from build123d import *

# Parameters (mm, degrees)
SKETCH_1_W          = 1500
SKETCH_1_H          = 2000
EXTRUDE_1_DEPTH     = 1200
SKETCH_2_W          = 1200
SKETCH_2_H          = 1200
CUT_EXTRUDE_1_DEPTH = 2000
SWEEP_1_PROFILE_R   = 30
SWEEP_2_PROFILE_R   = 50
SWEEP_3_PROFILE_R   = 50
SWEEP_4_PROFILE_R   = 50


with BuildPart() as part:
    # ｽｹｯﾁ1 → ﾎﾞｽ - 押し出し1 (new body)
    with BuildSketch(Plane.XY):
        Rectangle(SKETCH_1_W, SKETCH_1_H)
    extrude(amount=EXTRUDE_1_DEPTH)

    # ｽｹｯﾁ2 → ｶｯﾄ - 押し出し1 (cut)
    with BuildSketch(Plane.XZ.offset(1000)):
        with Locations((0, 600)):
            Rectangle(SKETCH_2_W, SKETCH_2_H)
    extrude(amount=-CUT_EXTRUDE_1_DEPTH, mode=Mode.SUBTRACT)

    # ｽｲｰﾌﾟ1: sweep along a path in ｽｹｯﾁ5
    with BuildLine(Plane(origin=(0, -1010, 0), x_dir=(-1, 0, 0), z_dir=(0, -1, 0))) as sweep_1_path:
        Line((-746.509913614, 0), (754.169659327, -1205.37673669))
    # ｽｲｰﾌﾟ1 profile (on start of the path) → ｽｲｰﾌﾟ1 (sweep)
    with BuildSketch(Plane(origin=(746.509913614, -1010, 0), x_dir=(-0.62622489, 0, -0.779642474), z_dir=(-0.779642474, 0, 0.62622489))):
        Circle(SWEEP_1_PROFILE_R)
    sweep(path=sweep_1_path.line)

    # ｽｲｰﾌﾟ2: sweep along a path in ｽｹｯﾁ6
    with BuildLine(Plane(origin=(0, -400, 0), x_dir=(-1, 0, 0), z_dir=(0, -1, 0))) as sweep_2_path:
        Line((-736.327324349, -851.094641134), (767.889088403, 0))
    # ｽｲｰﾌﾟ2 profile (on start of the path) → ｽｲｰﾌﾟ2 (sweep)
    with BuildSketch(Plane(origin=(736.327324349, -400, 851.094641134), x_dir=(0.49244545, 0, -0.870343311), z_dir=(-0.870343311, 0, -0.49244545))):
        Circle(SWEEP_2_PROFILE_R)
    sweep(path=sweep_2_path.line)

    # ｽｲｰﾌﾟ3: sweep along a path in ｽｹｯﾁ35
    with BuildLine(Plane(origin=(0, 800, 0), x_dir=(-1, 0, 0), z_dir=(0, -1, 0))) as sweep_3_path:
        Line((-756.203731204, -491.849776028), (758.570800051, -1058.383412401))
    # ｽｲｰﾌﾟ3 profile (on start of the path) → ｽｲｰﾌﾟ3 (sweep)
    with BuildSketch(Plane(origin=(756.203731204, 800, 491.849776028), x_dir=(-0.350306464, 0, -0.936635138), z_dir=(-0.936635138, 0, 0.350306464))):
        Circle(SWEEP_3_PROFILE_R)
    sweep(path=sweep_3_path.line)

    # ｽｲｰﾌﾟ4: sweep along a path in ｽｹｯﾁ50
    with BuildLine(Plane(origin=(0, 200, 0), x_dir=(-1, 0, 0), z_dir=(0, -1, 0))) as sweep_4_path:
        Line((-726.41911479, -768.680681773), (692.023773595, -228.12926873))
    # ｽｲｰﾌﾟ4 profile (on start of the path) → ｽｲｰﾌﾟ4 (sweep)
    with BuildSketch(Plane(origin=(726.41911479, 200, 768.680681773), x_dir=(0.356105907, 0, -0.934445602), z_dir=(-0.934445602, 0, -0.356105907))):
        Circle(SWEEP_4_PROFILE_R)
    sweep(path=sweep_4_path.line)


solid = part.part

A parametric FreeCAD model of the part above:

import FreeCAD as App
import Part
import Sketcher

V = App.Vector

doc = App.newDocument("Part")
body = doc.addObject("PartDesign::Body", "Body")
body.AllowCompound = True

sketch1 = doc.addObject("Sketcher::SketchObject", "Sketch")
body.addObject(sketch1)
sketch1.AttachmentSupport = (doc.XY_Plane, [""])
sketch1.MapMode = "FlatFace"
sketch1.addGeometry(Part.LineSegment(V(-750, 1000, 0), V(-750, -1000, 0)), False)
sketch1.addGeometry(Part.LineSegment(V(-750, -1000, 0), V(750, -1000, 0)), False)
sketch1.addGeometry(Part.LineSegment(V(750, -1000, 0), V(750, 1000, 0)), False)
sketch1.addGeometry(Part.LineSegment(V(750, 1000, 0), V(-750, 1000, 0)), False)
sketch1.addConstraint(Sketcher.Constraint("Coincident", 0, 2, 1, 1))
sketch1.addConstraint(Sketcher.Constraint("Coincident", 1, 2, 2, 1))
sketch1.addConstraint(Sketcher.Constraint("Coincident", 2, 2, 3, 1))
sketch1.addConstraint(Sketcher.Constraint("Coincident", 3, 2, 0, 1))
sketch1.addConstraint(Sketcher.Constraint("Vertical", 0))
sketch1.addConstraint(Sketcher.Constraint("Horizontal", 1))
sketch1.addConstraint(Sketcher.Constraint("Vertical", 2))
sketch1.addConstraint(Sketcher.Constraint("Horizontal", 3))
sketch1.addConstraint(Sketcher.Constraint("Symmetric", 0, 2, 2, 2, -1, 1))
sketch1.addConstraint(Sketcher.Constraint("DistanceX", 1, 1, 1, 2, 1500.0))
sketch1.addConstraint(Sketcher.Constraint("DistanceY", 0, 2, 0, 1, 2000.0))
pad1 = doc.addObject("PartDesign::Pad", "Pad")
body.addObject(pad1)
pad1.Profile = sketch1
pad1.Length = 1200

sketch2 = doc.addObject("Sketcher::SketchObject", "Sketch001")
body.addObject(sketch2)
sketch2.AttachmentSupport = (doc.XZ_Plane, [""])
sketch2.MapMode = "FlatFace"
sketch2.AttachmentOffset = App.Placement(V(0, 0, 1000), App.Rotation())
sketch2.addGeometry(Part.LineSegment(V(-600, 1200, 0), V(-600, 0, 0)), False)
sketch2.addGeometry(Part.LineSegment(V(-600, 0, 0), V(600, 0, 0)), False)
sketch2.addGeometry(Part.LineSegment(V(600, 0, 0), V(600, 1200, 0)), False)
sketch2.addGeometry(Part.LineSegment(V(600, 1200, 0), V(-600, 1200, 0)), False)
sketch2.addConstraint(Sketcher.Constraint("Coincident", 0, 2, 1, 1))
sketch2.addConstraint(Sketcher.Constraint("Coincident", 1, 2, 2, 1))
sketch2.addConstraint(Sketcher.Constraint("Coincident", 2, 2, 3, 1))
sketch2.addConstraint(Sketcher.Constraint("Coincident", 3, 2, 0, 1))
sketch2.addConstraint(Sketcher.Constraint("Vertical", 0))
sketch2.addConstraint(Sketcher.Constraint("Horizontal", 1))
sketch2.addConstraint(Sketcher.Constraint("Vertical", 2))
sketch2.addConstraint(Sketcher.Constraint("Horizontal", 3))
sketch2.addConstraint(Sketcher.Constraint("Symmetric", 0, 2, 1, 2, -1, 1))
sketch2.addConstraint(Sketcher.Constraint("Equal", 3, 0))
sketch2.addConstraint(Sketcher.Constraint("DistanceX", 1, 1, 1, 2, 1200.0))
pocket1 = doc.addObject("PartDesign::Pocket", "Pocket")
body.addObject(pocket1)
pocket1.Profile = sketch2
pocket1.Length = 2000

sketch3 = doc.addObject("Sketcher::SketchObject", "Sketch002")
body.addObject(sketch3)
sketch3.Placement = App.Placement(V(746.509914, -1010, 0), App.Rotation(V(-0.62622489, 0, -0.779642474), V(0, -1, 0), V(-0.779642474, 0, 0.62622489), "ZXY"))
sketch3.addGeometry(Part.Circle(V(0, 0, 0), V(0, 0, 1), 30), False)
sketch3.addConstraint(Sketcher.Constraint("Coincident", 0, 3, -1, 1))
sketch3.addConstraint(Sketcher.Constraint("Diameter", 0, 60.0))

sketch4 = doc.addObject("Sketcher::SketchObject", "Sketch003")
body.addObject(sketch4)
sketch4.Placement = App.Placement(V(292.749546, 0, 364.469672), App.Rotation(V(-0.779642474, 0, 0.62622489), V(0, 1, 0), V(-0.62622489, 0, -0.779642474), "ZXY"))
sketch4.addGeometry(Part.LineSegment(V(-582.010836, -1010, 0), V(1342.819614, -1010, 0)), False)
sketch4.addConstraint(Sketcher.Constraint("Horizontal", 0))
sketch4.addConstraint(Sketcher.Constraint("DistanceY", 0, 1, -1, 1, 1010.0))
sketch4.addConstraint(Sketcher.Constraint("DistanceX", 0, 1, 0, 2, 1924.830449))
sketch4.addConstraint(Sketcher.Constraint("DistanceX", 0, 1, -1, 1, 582.010836))
doc.recompute()

additivepipe = doc.addObject("PartDesign::AdditivePipe", "AdditivePipe")
body.addObject(additivepipe)
additivepipe.Profile = sketch3
additivepipe.Spine = (sketch4, ["Edge1"])

sketch5 = doc.addObject("Sketcher::SketchObject", "Sketch004")
body.addObject(sketch5)
sketch5.Placement = App.Placement(V(736.327324, -400, 851.094641), App.Rotation(V(0.49244545, 0, -0.870343311), V(0, -1, 0), V(-0.870343311, 0, -0.49244545), "ZXY"))
sketch5.addGeometry(Part.Circle(V(0, 0, 0), V(0, 0, 1), 50), False)
sketch5.addConstraint(Sketcher.Constraint("Coincident", 0, 3, -1, 1))
sketch5.addConstraint(Sketcher.Constraint("Diameter", 0, 100.0))

sketch6 = doc.addObject("Sketcher::SketchObject", "Sketch005")
body.addObject(sketch6)
sketch6.Placement = App.Placement(V(-186.21504, 0, 329.114655), App.Rotation(V(-0.870343311, 0, -0.49244545), V(0, 1, 0), V(0.49244545, 0, -0.870343311), "ZXY"))
sketch6.addGeometry(Part.LineSegment(V(-1059.975245, -400, 0), V(668.327132, -400, 0)), False)
sketch6.addConstraint(Sketcher.Constraint("Horizontal", 0))
sketch6.addConstraint(Sketcher.Constraint("DistanceY", 0, 1, -1, 1, 400.0))
sketch6.addConstraint(Sketcher.Constraint("DistanceX", 0, 1, 0, 2, 1728.302377))
sketch6.addConstraint(Sketcher.Constraint("DistanceX", -1, 1, 0, 2, 668.327132))
doc.recompute()

additivepipe2 = doc.addObject("PartDesign::AdditivePipe", "AdditivePipe001")
body.addObject(additivepipe2)
additivepipe2.Profile = sketch5
additivepipe2.Spine = (sketch6, ["Edge1"])

sketch7 = doc.addObject("Sketcher::SketchObject", "Sketch006")
body.addObject(sketch7)
sketch7.Placement = App.Placement(V(756.203731, 800, 491.849776), App.Rotation(V(-0.350306464, 0, -0.936635138), V(0, -1, 0), V(-0.936635138, 0, 0.350306464), "ZXY"))
sketch7.addGeometry(Part.Circle(V(0, 0, 0), V(0, 0, 1), 50), False)
sketch7.addConstraint(Sketcher.Constraint("Coincident", 0, 3, -1, 1))
sketch7.addConstraint(Sketcher.Constraint("Diameter", 0, 100.0))

sketch8 = doc.addObject("Sketcher::SketchObject", "Sketch007")
body.addObject(sketch8)
sketch8.Placement = App.Placement(V(254.17776, 0, 679.610128), App.Rotation(V(-0.936635138, 0, 0.350306464), V(0, 1, 0), V(-0.350306464, 0, -0.936635138), "ZXY"))
sketch8.addGeometry(Part.LineSegment(V(-535.98883, 800.000001, 0), V(1081.262617, 800.000001, 0)), False)
sketch8.addConstraint(Sketcher.Constraint("Horizontal", 0))
sketch8.addConstraint(Sketcher.Constraint("DistanceY", -1, 1, 0, 1, 800.000001))
sketch8.addConstraint(Sketcher.Constraint("DistanceX", 0, 1, 0, 2, 1617.251447))
sketch8.addConstraint(Sketcher.Constraint("DistanceX", 0, 1, -1, 1, 535.98883))
doc.recompute()

additivepipe3 = doc.addObject("PartDesign::AdditivePipe", "AdditivePipe002")
body.addObject(additivepipe3)
additivepipe3.Profile = sketch7
additivepipe3.Spine = (sketch8, ["Edge1"])

sketch9 = doc.addObject("Sketcher::SketchObject", "Sketch008")
body.addObject(sketch9)
sketch9.Placement = App.Placement(V(726.419115, 200, 768.680682), App.Rotation(V(0.356105907, 0, -0.934445602), V(0, -1, 0), V(-0.934445602, 0, -0.356105907), "ZXY"))
sketch9.addGeometry(Part.Circle(V(0, 0, 0), V(0, 0, 1), 50), False)
sketch9.addConstraint(Sketcher.Constraint("Coincident", 0, 3, -1, 1))
sketch9.addConstraint(Sketcher.Constraint("Diameter", 0, 100.0))

sketch10 = doc.addObject("Sketcher::SketchObject", "Sketch009")
body.addObject(sketch10)
sketch10.Placement = App.Placement(V(-163.669175, 0, 429.47881), App.Rotation(V(-0.934445602, 0, -0.356105907), V(0, 1, 0), V(0.356105907, 0, -0.934445602), "ZXY"))
sketch10.addGeometry(Part.LineSegment(V(-952.530878, 200, 0), V(565.420392, 200, 0)), False)
sketch10.addConstraint(Sketcher.Constraint("Horizontal", 0))
sketch10.addConstraint(Sketcher.Constraint("DistanceY", -1, 1, 0, 1, 200.0))
sketch10.addConstraint(Sketcher.Constraint("DistanceX", 0, 1, 0, 2, 1517.95127))
sketch10.addConstraint(Sketcher.Constraint("DistanceX", 0, 1, -1, 1, 952.530878))
doc.recompute()

additivepipe4 = doc.addObject("PartDesign::AdditivePipe", "AdditivePipe003")
body.addObject(additivepipe4)
additivepipe4.Profile = sketch9
additivepipe4.Spine = (sketch10, ["Edge1"])

doc.recompute()
